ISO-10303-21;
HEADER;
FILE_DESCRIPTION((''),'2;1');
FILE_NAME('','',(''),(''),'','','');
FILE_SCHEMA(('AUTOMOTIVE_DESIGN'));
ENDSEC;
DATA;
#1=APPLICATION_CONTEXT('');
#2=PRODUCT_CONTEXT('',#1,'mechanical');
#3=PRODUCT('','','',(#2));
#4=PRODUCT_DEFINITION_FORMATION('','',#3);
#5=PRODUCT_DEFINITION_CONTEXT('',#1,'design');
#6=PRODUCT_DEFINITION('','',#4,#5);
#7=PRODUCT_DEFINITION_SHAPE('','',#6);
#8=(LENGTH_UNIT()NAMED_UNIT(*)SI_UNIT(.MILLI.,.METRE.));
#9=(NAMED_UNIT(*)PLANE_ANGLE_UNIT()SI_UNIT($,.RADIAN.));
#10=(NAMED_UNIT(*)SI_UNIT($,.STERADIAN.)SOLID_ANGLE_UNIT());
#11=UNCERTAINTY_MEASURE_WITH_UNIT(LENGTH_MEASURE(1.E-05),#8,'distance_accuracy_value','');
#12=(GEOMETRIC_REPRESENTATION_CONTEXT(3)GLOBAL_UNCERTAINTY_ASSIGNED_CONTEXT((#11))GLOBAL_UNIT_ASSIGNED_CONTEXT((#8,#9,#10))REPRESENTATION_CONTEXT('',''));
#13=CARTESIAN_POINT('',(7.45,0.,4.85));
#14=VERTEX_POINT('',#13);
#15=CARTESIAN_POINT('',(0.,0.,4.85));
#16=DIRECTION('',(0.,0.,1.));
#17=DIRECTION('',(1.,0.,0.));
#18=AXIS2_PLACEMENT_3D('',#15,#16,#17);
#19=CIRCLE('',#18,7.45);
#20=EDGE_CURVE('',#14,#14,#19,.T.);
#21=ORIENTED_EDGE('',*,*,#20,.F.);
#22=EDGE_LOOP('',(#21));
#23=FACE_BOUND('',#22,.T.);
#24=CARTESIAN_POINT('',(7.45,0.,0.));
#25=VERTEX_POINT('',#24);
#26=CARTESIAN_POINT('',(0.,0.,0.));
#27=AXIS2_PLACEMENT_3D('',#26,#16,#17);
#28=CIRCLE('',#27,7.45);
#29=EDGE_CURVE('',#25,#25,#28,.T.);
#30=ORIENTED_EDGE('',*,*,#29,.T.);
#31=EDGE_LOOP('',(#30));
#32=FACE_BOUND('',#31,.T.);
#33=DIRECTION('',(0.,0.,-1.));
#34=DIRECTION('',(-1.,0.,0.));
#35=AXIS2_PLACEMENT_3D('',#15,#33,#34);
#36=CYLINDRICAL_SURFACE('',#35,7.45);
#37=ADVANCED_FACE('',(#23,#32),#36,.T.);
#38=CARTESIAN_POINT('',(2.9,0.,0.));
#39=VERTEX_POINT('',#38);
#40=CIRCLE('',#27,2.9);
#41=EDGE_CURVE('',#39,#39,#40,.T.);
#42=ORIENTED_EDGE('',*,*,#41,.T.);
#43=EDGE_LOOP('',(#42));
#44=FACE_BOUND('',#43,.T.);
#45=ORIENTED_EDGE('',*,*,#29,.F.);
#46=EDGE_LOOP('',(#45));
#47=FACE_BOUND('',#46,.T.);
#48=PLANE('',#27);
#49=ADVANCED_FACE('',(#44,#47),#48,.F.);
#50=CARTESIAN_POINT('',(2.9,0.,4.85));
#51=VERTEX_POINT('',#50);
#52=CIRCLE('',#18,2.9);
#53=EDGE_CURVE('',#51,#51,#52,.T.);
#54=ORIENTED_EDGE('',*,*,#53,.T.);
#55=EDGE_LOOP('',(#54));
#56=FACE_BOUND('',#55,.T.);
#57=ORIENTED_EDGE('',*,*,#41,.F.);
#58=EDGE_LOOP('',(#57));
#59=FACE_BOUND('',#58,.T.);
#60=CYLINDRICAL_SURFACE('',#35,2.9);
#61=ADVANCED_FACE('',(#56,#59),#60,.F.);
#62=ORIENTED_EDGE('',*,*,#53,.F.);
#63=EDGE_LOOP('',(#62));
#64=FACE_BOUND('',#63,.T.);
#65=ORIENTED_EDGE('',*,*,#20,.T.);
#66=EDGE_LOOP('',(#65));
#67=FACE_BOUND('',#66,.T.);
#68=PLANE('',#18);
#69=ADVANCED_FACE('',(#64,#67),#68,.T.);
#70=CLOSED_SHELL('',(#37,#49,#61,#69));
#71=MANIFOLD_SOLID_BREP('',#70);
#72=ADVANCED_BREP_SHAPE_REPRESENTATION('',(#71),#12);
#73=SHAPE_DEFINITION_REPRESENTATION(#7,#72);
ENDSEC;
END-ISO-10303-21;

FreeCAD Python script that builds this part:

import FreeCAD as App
import Part
import Sketcher
from FreeCAD import Vector
Q = App.Units.Quantity

doc = App.newDocument("Part")
body = doc.addObject("PartDesign::Body", "Body")

sketch1 = doc.addObject("Sketcher::SketchObject", "Sketch")
body.addObject(sketch1)
sketch1.AttachmentSupport = (doc.XY_Plane, [""])
sketch1.MapMode = "FlatFace"
sketch1.addGeometry(Part.Circle(Vector(0, 0, 0), Vector(0, 0, 1), 7.45), False)
sketch1.addGeometry(Part.Circle(Vector(0, 0, 0), Vector(0, 0, 1), 2.9), False)
sketch1.addConstraint(Sketcher.Constraint("Coincident", 0, 3, -1, 1))
sketch1.addConstraint(Sketcher.Constraint("Coincident", 1, 3, -1, 1))
sketch1.addConstraint(Sketcher.Constraint("Diameter", 0, Q("14.9 mm")))
sketch1.addConstraint(Sketcher.Constraint("Diameter", 1, Q("5.8 mm")))
pad1 = doc.addObject("PartDesign::Pad", "Pad")
body.addObject(pad1)
pad1.Profile = sketch1
pad1.Length = 4.85

doc.recompute()
